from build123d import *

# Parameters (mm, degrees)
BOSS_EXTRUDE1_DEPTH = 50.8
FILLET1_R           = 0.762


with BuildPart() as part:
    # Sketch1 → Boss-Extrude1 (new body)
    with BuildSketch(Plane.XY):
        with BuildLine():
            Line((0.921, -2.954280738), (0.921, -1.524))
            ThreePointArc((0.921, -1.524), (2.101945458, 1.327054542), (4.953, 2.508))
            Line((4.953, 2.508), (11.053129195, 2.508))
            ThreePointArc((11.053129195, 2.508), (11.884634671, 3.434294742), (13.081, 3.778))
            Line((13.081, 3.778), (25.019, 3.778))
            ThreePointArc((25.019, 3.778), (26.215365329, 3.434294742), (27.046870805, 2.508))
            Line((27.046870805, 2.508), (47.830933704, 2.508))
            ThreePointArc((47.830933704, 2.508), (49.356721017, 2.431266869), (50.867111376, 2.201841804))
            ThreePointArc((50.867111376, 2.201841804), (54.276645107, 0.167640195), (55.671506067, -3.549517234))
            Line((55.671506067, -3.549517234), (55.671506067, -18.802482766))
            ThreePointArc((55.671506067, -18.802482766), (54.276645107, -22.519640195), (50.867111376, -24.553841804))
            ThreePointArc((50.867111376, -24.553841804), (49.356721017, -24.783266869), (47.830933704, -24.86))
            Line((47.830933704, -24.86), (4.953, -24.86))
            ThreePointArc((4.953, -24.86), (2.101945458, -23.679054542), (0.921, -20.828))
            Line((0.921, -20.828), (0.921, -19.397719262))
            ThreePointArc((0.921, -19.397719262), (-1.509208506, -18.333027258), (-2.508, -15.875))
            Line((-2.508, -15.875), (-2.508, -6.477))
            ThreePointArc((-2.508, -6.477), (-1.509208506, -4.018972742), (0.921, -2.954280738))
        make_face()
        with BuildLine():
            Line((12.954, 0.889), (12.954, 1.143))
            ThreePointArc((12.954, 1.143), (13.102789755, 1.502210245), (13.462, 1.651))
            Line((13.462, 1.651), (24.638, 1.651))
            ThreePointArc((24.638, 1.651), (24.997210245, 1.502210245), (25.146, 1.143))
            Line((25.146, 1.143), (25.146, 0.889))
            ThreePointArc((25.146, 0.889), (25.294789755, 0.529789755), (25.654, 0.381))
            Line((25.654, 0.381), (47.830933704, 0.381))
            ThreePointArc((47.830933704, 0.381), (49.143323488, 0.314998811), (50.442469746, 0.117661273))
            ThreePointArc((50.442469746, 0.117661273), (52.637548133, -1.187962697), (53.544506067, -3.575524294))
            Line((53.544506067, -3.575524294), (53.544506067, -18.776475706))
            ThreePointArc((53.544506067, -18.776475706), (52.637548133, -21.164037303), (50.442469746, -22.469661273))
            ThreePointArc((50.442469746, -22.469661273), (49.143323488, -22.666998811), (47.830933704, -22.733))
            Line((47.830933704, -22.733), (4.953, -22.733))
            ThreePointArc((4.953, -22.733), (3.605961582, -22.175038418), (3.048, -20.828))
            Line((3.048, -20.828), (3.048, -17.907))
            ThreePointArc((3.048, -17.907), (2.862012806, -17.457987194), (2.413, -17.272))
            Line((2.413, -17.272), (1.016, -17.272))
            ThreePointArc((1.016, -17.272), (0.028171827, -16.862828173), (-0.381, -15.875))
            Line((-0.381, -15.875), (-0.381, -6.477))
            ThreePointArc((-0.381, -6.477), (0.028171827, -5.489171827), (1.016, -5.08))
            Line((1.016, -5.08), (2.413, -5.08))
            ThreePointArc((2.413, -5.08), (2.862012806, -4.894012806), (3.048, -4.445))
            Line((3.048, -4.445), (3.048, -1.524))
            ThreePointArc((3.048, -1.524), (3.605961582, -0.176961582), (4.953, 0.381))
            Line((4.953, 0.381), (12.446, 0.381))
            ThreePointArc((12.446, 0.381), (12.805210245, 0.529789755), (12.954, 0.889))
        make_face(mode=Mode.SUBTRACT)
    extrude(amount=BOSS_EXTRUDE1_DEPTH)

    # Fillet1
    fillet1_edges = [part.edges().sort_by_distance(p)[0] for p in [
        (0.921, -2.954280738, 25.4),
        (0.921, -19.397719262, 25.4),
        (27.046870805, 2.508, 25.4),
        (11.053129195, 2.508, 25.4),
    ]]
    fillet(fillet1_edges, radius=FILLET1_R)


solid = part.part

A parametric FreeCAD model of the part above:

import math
import FreeCAD as App
import Part
import Sketcher
Q = App.Units.Quantity


def edges_at(feature, points):
    """Names of the edges that pass closest to the given points."""
    edges = feature.Shape.Edges
    near = lambda p: min(range(len(edges)), key=lambda i: edges[i].distToShape(Part.Vertex(*p))[0])
    return sorted({f"Edge{near(p) + 1}" for p in points})

doc = App.newDocument("Part")
body = doc.addObject("PartDesign::Body", "Body")

sketch1 = body.newObject("Sketcher::SketchObject", "Sketch")
sketch1.AttachmentSupport = (doc.getObject("XY_Plane"), [""])
sketch1.MapMode = "FlatFace"
sketch1.addGeometry([
    Part.LineSegment(App.Vector(0.921, -1.524, 0), App.Vector(0.921, -2.954281, 0)),
    Part.ArcOfCircle(Part.Circle(App.Vector(1.016, -6.477, 0), App.Vector(0, 0, 1), 3.524), math.radians(91.544767), math.radians(180)),
    Part.LineSegment(App.Vector(-2.508, -6.477, 0), App.Vector(-2.508, -15.875, 0)),
    Part.ArcOfCircle(Part.Circle(App.Vector(1.016, -15.875, 0), App.Vector(0, 0, 1), 3.524), math.radians(180), math.radians(268.455233)),
    Part.LineSegment(App.Vector(0.921, -19.397719, 0), App.Vector(0.921, -20.828, 0)),
    Part.ArcOfCircle(Part.Circle(App.Vector(4.953, -20.828, 0), App.Vector(0, 0, 1), 4.032), math.radians(180), math.radians(270)),
    Part.LineSegment(App.Vector(4.953, -24.86, 0), App.Vector(47.830934, -24.86, 0)),
    Part.ArcOfCircle(Part.Circle(App.Vector(47.830934, -9.652, 0), App.Vector(0, 0, 1), 15.208), math.radians(-90), math.radians(-78.48389)),
    Part.ArcOfCircle(Part.Circle(App.Vector(49.668324, -18.670082, 0), App.Vector(0, 0, 1), 6.004642), math.radians(-78.48389), math.radians(-1.263464)),
    Part.LineSegment(App.Vector(55.671506, -18.802483, 0), App.Vector(55.671506, -3.549517, 0)),
    Part.ArcOfCircle(Part.Circle(App.Vector(49.668324, -3.681918, 0), App.Vector(0, 0, 1), 6.004642), math.radians(1.263464), math.radians(78.48389)),
    Part.ArcOfCircle(Part.Circle(App.Vector(47.830934, -12.7, 0), App.Vector(0, 0, 1), 15.208), math.radians(78.48389), math.radians(90)),
    Part.LineSegment(App.Vector(47.830934, 2.508, 0), App.Vector(27.046871, 2.508, 0)),
    Part.ArcOfCircle(Part.Circle(App.Vector(25.019, 1.524, 0), App.Vector(0, 0, 1), 2.254), math.radians(25.884424), math.radians(90)),
    Part.LineSegment(App.Vector(25.019, 3.778, 0), App.Vector(13.081, 3.778, 0)),
    Part.ArcOfCircle(Part.Circle(App.Vector(13.081, 1.524, 0), App.Vector(0, 0, 1), 2.254), math.radians(90), math.radians(154.115576)),
    Part.LineSegment(App.Vector(11.053129, 2.508, 0), App.Vector(4.953, 2.508, 0)),
    Part.ArcOfCircle(Part.Circle(App.Vector(4.953, -1.524, 0), App.Vector(0, 0, 1), 4.032), math.radians(90), math.radians(180)),
    Part.LineSegment(App.Vector(12.954, 0.889, 0), App.Vector(12.954, 1.143, 0)),
    Part.ArcOfCircle(Part.Circle(App.Vector(13.462, 1.143, 0), App.Vector(0, 0, 1), 0.508), math.radians(90), math.radians(180)),
    Part.LineSegment(App.Vector(13.462, 1.651, 0), App.Vector(24.638, 1.651, 0)),
    Part.ArcOfCircle(Part.Circle(App.Vector(24.638, 1.143, 0), App.Vector(0, 0, 1), 0.508), math.radians(0), math.radians(90)),
    Part.LineSegment(App.Vector(25.146, 1.143, 0), App.Vector(25.146, 0.889, 0)),
    Part.ArcOfCircle(Part.Circle(App.Vector(25.654, 0.889, 0), App.Vector(0, 0, 1), 0.508), math.radians(180), math.radians(270)),
    Part.LineSegment(App.Vector(25.654, 0.381, 0), App.Vector(47.830934, 0.381, 0)),
    Part.ArcOfCircle(Part.Circle(App.Vector(47.830934, -12.7, 0), App.Vector(0, 0, 1), 13.081), math.radians(78.48389), math.radians(90)),
    Part.ArcOfCircle(Part.Circle(App.Vector(49.668324, -3.681918, 0), App.Vector(0, 0, 1), 3.877642), math.radians(1.572271), math.radians(78.48389)),
    Part.LineSegment(App.Vector(53.544506, -3.575524, 0), App.Vector(53.544506, -18.776476, 0)),
    Part.ArcOfCircle(Part.Circle(App.Vector(49.668324, -18.670082, 0), App.Vector(0, 0, 1), 3.877642), math.radians(-78.48389), math.radians(-1.572271)),
    Part.ArcOfCircle(Part.Circle(App.Vector(47.830934, -9.652, 0), App.Vector(0, 0, 1), 13.081), math.radians(-90), math.radians(-78.48389)),
    Part.LineSegment(App.Vector(47.830934, -22.733, 0), App.Vector(4.953, -22.733, 0)),
    Part.ArcOfCircle(Part.Circle(App.Vector(4.953, -20.828, 0), App.Vector(0, 0, 1), 1.905), math.radians(-180), math.radians(-90)),
    Part.LineSegment(App.Vector(3.048, -20.828, 0), App.Vector(3.048, -17.907, 0)),
    Part.ArcOfCircle(Part.Circle(App.Vector(2.413, -17.907, 0), App.Vector(0, 0, 1), 0.635), math.radians(0), math.radians(90)),
    Part.LineSegment(App.Vector(2.413, -17.272, 0), App.Vector(1.016, -17.272, 0)),
    Part.ArcOfCircle(Part.Circle(App.Vector(1.016, -15.875, 0), App.Vector(0, 0, 1), 1.397), math.radians(-180), math.radians(-90)),
    Part.LineSegment(App.Vector(-0.381, -15.875, 0), App.Vector(-0.381, -6.477, 0)),
    Part.ArcOfCircle(Part.Circle(App.Vector(1.016, -6.477, 0), App.Vector(0, 0, 1), 1.397), math.radians(90), math.radians(180)),
    Part.LineSegment(App.Vector(1.016, -5.08, 0), App.Vector(2.413, -5.08, 0)),
    Part.ArcOfCircle(Part.Circle(App.Vector(2.413, -4.445, 0), App.Vector(0, 0, 1), 0.635), math.radians(-90), math.radians(0)),
    Part.LineSegment(App.Vector(3.048, -4.445, 0), App.Vector(3.048, -1.524, 0)),
    Part.ArcOfCircle(Part.Circle(App.Vector(4.953, -1.524, 0), App.Vector(0, 0, 1), 1.905), math.radians(90), math.radians(180)),
    Part.LineSegment(App.Vector(4.953, 0.381, 0), App.Vector(12.446, 0.381, 0)),
    Part.ArcOfCircle(Part.Circle(App.Vector(12.446, 0.889, 0), App.Vector(0, 0, 1), 0.508), math.radians(-90), math.radians(0)),
], False)
sketch1.addConstraint([
    Sketcher.Constraint("Coincident", 0, 2, 1, 1),
    Sketcher.Constraint("Tangent", 1, 2, 2, 1),
    Sketcher.Constraint("Tangent", 2, 2, 3, 1),
    Sketcher.Constraint("Coincident", 3, 2, 4, 1),
    Sketcher.Constraint("Tangent", 4, 2, 5, 1),
    Sketcher.Constraint("Tangent", 5, 2, 6, 1),
    Sketcher.Constraint("Tangent", 6, 2, 7, 1),
    Sketcher.Constraint("Tangent", 7, 2, 8, 1),
    Sketcher.Constraint("Coincident", 8, 2, 9, 1),
    Sketcher.Constraint("Coincident", 9, 2, 10, 1),
    Sketcher.Constraint("Tangent", 10, 2, 11, 1),
    Sketcher.Constraint("Tangent", 11, 2, 12, 1),
    Sketcher.Constraint("Coincident", 12, 2, 13, 1),
    Sketcher.Constraint("Tangent", 13, 2, 14, 1),
    Sketcher.Constraint("Tangent", 14, 2, 15, 1),
    Sketcher.Constraint("Coincident", 15, 2, 16, 1),
    Sketcher.Constraint("Tangent", 16, 2, 17, 1),
    Sketcher.Constraint("Tangent", 17, 2, 0, 1),
    Sketcher.Constraint("Tangent", 18, 2, 19, 2),
    Sketcher.Constraint("Tangent", 19, 1, 20, 1),
    Sketcher.Constraint("Tangent", 20, 2, 21, 2),
    Sketcher.Constraint("Tangent", 21, 1, 22, 1),
    Sketcher.Constraint("Tangent", 22, 2, 23, 1),
    Sketcher.Constraint("Tangent", 23, 2, 24, 1),
    Sketcher.Constraint("Tangent", 24, 2, 25, 2),
    Sketcher.Constraint("Tangent", 25, 1, 26, 2),
    Sketcher.Constraint("Coincident", 26, 1, 27, 1),
    Sketcher.Constraint("Coincident", 27, 2, 28, 2),
    Sketcher.Constraint("Tangent", 28, 1, 29, 2),
    Sketcher.Constraint("Tangent", 29, 1, 30, 1),
    Sketcher.Constraint("Tangent", 30, 2, 31, 2),
    Sketcher.Constraint("Tangent", 31, 1, 32, 1),
    Sketcher.Constraint("Tangent", 32, 2, 33, 1),
    Sketcher.Constraint("Tangent", 33, 2, 34, 1),
    Sketcher.Constraint("Tangent", 34, 2, 35, 2),
    Sketcher.Constraint("Tangent", 35, 1, 36, 1),
    Sketcher.Constraint("Tangent", 36, 2, 37, 2),
    Sketcher.Constraint("Tangent", 37, 1, 38, 1),
    Sketcher.Constraint("Tangent", 38, 2, 39, 1),
    Sketcher.Constraint("Tangent", 39, 2, 40, 1),
    Sketcher.Constraint("Tangent", 40, 2, 41, 2),
    Sketcher.Constraint("Tangent", 41, 1, 42, 1),
    Sketcher.Constraint("Tangent", 42, 2, 43, 1),
    Sketcher.Constraint("Tangent", 43, 2, 18, 1),
    Sketcher.Constraint("Vertical", 0),
    Sketcher.Constraint("Vertical", 2),
    Sketcher.Constraint("Vertical", 4),
    Sketcher.Constraint("Horizontal", 6),
    Sketcher.Constraint("Vertical", 9),
    Sketcher.Constraint("Horizontal", 12),
    Sketcher.Constraint("Horizontal", 14),
    Sketcher.Constraint("Horizontal", 16),
    Sketcher.Constraint("Vertical", 18),
    Sketcher.Constraint("Horizontal", 20),
    Sketcher.Constraint("Vertical", 22),
    Sketcher.Constraint("Horizontal", 24),
    Sketcher.Constraint("Vertical", 27),
    Sketcher.Constraint("Horizontal", 30),
    Sketcher.Constraint("Vertical", 32),
    Sketcher.Constraint("Horizontal", 34),
    Sketcher.Constraint("Vertical", 36),
    Sketcher.Constraint("Horizontal", 38),
    Sketcher.Constraint("Vertical", 40),
    Sketcher.Constraint("Horizontal", 42),
    Sketcher.Constraint("Coincident", 25, 3, 11, 3),
    Sketcher.Constraint("Coincident", 26, 3, 10, 3),
    Sketcher.Constraint("Coincident", 28, 3, 8, 3),
    Sketcher.Constraint("Coincident", 29, 3, 7, 3),
    Sketcher.Constraint("Coincident", 31, 3, 5, 3),
    Sketcher.Constraint("Coincident", 35, 3, 3, 3),
    Sketcher.Constraint("Coincident", 37, 3, 1, 3),
    Sketcher.Constraint("Coincident", 41, 3, 17, 3),
    Sketcher.Constraint("Equal", 1, 3),
    Sketcher.Constraint("Equal", 8, 10),
    Sketcher.Constraint("Equal", 7, 11),
    Sketcher.Constraint("Equal", 13, 15),
    Sketcher.Constraint("Equal", 5, 17),
    Sketcher.Constraint("Equal", 19, 21),
    Sketcher.Constraint("Equal", 21, 23),
    Sketcher.Constraint("Equal", 26, 28),
    Sketcher.Constraint("Equal", 33, 39),
    Sketcher.Constraint("Equal", 31, 41),
    Sketcher.Constraint("Equal", 23, 43),
    Sketcher.Constraint("Horizontal", 23, 3, 43, 3),
    Sketcher.Constraint("Vertical", 8, 3, 10, 3),
    Sketcher.Constraint("Vertical", 7, 3, 11, 3),
    Sketcher.Constraint("Vertical", 5, 3, 17, 3),
    Sketcher.Constraint("Equal", 0, 4),
    Sketcher.Constraint("Radius", 19, Q("0.02 in")),
    Sketcher.Constraint("Radius", 25, Q("0.515 in")),
    Sketcher.Constraint("Radius", 31, Q("0.075 in")),
    Sketcher.Constraint("Radius", 33, Q("0.025 in")),
    Sketcher.Constraint("Radius", 35, Q("0.055 in")),
    Sketcher.Constraint("DistanceX", 14, 2, 14, 1, Q("0.47 in")),
    Sketcher.Constraint("DistanceX", 20, 1, 20, 2, Q("0.44 in")),
    Sketcher.Constraint("DistanceY", 2, 2, 2, 1, Q("0.37 in")),
    Sketcher.Constraint("DistanceY", 18, 1, 18, 2, Q("0.01 in")),
    Sketcher.Constraint("DistanceY", 11, 3, -1, 1, Q("0.5 in")),
    Sketcher.Constraint("DistanceY", 37, 1, -1, 1, Q("0.2 in")),
    Sketcher.Constraint("DistanceX", 34, 2, 34, 1, Q("0.055 in")),
    Sketcher.Constraint("DistanceX", 42, 1, 42, 2, Q("0.295 in")),
    Sketcher.Constraint("DistanceX", -1, 1, 1, 3, Q("0.04 in")),
    Sketcher.Constraint("DistanceY", -1, 1, 13, 3, Q("0.06 in")),
    Sketcher.Constraint("Radius", 1, 3.524),
    Sketcher.Constraint("Radius", 5, 4.032),
    Sketcher.Constraint("Radius", 13, 2.254),
    Sketcher.Constraint("DistanceX", -1, 1, 13, 3, Q("0.985 in")),
    Sketcher.Constraint("Radius", 8, 6.004642),
    Sketcher.Constraint("DistanceY", 27, 2, 27, 1, 15.200951),
    Sketcher.Constraint("DistanceX", 6, 1, 6, 2, 42.877934),
    Sketcher.Constraint("DistanceY", 9, 1, 9, 2, 15.252966),
    Sketcher.Constraint("DistanceY", 8, 3, -1, 1, 18.670082),
])
pad1 = body.newObject("PartDesign::Pad", "Pad")
pad1.Profile = sketch1
pad1.Length = Q("2 in")
doc.recompute()

fillet = body.newObject("PartDesign::Fillet", "Fillet")
fillet.Base = (pad1, edges_at(pad1, [
    (0.921, -2.954, 25.4),
    (0.921, -19.398, 25.4),
    (27.047, 2.508, 25.4),
    (11.053, 2.508, 25.4),
]))
fillet.Radius = Q("0.03 in")

doc.recompute()
